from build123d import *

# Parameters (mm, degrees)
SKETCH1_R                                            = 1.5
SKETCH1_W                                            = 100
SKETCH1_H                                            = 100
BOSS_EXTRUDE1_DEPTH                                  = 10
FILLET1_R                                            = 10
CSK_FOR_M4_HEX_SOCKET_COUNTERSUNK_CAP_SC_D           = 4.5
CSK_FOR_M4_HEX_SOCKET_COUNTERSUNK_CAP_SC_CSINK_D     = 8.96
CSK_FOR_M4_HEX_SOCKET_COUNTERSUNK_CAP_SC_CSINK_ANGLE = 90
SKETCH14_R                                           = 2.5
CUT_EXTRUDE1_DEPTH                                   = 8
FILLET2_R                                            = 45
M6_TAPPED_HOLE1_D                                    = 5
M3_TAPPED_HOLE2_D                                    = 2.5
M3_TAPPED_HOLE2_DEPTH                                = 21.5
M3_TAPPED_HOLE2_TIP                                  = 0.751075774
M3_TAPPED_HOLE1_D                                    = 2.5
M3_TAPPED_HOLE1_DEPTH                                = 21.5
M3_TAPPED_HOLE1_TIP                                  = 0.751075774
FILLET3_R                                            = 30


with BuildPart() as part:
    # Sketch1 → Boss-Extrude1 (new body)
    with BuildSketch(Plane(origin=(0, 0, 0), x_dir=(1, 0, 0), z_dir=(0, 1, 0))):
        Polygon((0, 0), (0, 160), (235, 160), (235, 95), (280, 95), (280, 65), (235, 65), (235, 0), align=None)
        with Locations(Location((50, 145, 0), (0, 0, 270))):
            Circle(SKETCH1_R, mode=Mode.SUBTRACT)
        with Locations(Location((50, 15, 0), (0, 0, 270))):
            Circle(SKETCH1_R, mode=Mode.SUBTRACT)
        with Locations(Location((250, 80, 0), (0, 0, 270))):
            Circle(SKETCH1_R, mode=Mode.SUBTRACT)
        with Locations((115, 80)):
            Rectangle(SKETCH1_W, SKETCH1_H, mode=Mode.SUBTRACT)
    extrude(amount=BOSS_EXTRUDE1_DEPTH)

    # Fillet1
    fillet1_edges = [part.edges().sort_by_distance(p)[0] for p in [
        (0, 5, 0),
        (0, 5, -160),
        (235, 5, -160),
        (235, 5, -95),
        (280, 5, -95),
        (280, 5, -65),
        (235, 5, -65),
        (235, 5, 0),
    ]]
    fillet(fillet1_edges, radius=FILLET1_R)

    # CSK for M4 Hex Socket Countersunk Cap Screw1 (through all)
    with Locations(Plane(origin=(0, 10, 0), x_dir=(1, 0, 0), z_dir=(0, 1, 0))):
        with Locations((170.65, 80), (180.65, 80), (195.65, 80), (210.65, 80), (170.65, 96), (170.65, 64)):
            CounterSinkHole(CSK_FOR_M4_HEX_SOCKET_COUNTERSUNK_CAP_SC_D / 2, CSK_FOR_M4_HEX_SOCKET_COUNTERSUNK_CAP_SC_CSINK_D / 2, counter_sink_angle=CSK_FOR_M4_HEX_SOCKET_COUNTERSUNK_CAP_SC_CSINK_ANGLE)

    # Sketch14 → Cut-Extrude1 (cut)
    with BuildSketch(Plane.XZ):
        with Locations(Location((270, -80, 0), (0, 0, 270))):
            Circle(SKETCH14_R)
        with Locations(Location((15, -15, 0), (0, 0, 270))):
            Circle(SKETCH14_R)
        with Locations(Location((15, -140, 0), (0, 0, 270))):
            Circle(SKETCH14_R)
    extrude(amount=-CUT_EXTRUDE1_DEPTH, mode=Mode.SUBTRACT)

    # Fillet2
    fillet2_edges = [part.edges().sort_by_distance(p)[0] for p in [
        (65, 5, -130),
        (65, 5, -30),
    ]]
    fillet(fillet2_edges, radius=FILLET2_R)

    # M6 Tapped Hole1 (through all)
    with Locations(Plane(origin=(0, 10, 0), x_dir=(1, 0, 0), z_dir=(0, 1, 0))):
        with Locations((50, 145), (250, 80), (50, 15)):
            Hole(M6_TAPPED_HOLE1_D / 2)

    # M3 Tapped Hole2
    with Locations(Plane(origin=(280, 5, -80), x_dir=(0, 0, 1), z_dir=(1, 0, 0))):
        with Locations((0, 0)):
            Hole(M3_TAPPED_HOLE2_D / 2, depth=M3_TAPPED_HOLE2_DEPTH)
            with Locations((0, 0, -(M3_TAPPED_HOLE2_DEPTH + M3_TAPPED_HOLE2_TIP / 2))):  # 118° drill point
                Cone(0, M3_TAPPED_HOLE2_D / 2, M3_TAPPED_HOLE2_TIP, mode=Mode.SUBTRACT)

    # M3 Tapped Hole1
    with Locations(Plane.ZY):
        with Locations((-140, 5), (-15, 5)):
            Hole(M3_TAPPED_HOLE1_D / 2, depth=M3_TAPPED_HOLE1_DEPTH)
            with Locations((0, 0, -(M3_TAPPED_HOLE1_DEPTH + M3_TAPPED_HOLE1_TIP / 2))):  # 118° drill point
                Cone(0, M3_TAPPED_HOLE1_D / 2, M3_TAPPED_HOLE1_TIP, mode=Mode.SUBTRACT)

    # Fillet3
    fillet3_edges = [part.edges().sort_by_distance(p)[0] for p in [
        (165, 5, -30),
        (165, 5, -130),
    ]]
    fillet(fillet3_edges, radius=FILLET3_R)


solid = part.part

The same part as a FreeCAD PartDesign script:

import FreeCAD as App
import Part
import Sketcher
from FreeCAD import Vector
Q = App.Units.Quantity


def edges_at(feature, points):
    """Names of the edges that pass closest to the given points."""
    edges = feature.Shape.Edges
    near = lambda p: min(range(len(edges)), key=lambda i: edges[i].distToShape(Part.Vertex(*p))[0])
    return sorted({f"Edge{near(p) + 1}" for p in points})

doc = App.newDocument("Part")
body = doc.addObject("PartDesign::Body", "Body")

# Sketch on XZ plane
sketch1 = body.newObject("Sketcher::SketchObject", "Sketch")
sketch1.AttachmentSupport = (doc.getObject("XZ_Plane"), [""])
sketch1.MapMode = "FlatFace"
sketch1.addGeometry([
    Part.LineSegment(Vector(0, -160, 0), Vector(0, 0, 0)),  # 0
    Part.LineSegment(Vector(0, 0, 0), Vector(235, 0, 0)),  # 1
    Part.LineSegment(Vector(235, 0, 0), Vector(235, -65, 0)),  # 2
    Part.LineSegment(Vector(235, -65, 0), Vector(280, -65, 0)),  # 3
    Part.LineSegment(Vector(280, -65, 0), Vector(280, -95, 0)),  # 4
    Part.LineSegment(Vector(280, -95, 0), Vector(235, -95, 0)),  # 5
    Part.LineSegment(Vector(235, -95, 0), Vector(235, -160, 0)),  # 6
    Part.LineSegment(Vector(235, -160, 0), Vector(0, -160, 0)),  # 7
    Part.Circle(Vector(50, -15, 0), Vector(0, 0, 1), 1.5),  # 8
    Part.Circle(Vector(250, -80, 0), Vector(0, 0, 1), 1.5),  # 9
    Part.LineSegment(Vector(65, -30, 0), Vector(65, -130, 0)),  # 10
    Part.LineSegment(Vector(65, -130, 0), Vector(165, -130, 0)),  # 11
    Part.LineSegment(Vector(165, -130, 0), Vector(165, -30, 0)),  # 12
    Part.LineSegment(Vector(165, -30, 0), Vector(65, -30, 0)),  # 13
    Part.Circle(Vector(50, -145, 0), Vector(0, 0, 1), 1.5),  # 14
], False)
sketch1.addConstraint([
    Sketcher.Constraint("Coincident", 0, 2, 1, 1),
    Sketcher.Constraint("Coincident", 1, 2, 2, 1),
    Sketcher.Constraint("Coincident", 2, 2, 3, 1),
    Sketcher.Constraint("Coincident", 3, 2, 4, 1),
    Sketcher.Constraint("Coincident", 4, 2, 5, 1),
    Sketcher.Constraint("Coincident", 5, 2, 6, 1),
    Sketcher.Constraint("Coincident", 6, 2, 7, 1),
    Sketcher.Constraint("Coincident", 7, 2, 0, 1),
    Sketcher.Constraint("Coincident", 10, 2, 11, 1),
    Sketcher.Constraint("Coincident", 11, 2, 12, 1),
    Sketcher.Constraint("Coincident", 12, 2, 13, 1),
    Sketcher.Constraint("Coincident", 13, 2, 10, 1),
    Sketcher.Constraint("Vertical", 0),
    Sketcher.Constraint("Horizontal", 1),
    Sketcher.Constraint("Vertical", 2),
    Sketcher.Constraint("Horizontal", 3),
    Sketcher.Constraint("Vertical", 4),
    Sketcher.Constraint("Horizontal", 5),
    Sketcher.Constraint("Vertical", 6),
    Sketcher.Constraint("Horizontal", 7),
    Sketcher.Constraint("Vertical", 10),
    Sketcher.Constraint("Horizontal", 11),
    Sketcher.Constraint("Vertical", 12),
    Sketcher.Constraint("Horizontal", 13),
    Sketcher.Constraint("Coincident", 0, 2, -1, 1),
    Sketcher.Constraint("Equal", 8, 9),
    Sketcher.Constraint("Equal", 9, 14),
    Sketcher.Constraint("Vertical", 8, 3, 14, 3),
    Sketcher.Constraint("Vertical", 2, 2, 5, 2),
    Sketcher.Constraint("Equal", 2, 6),
    Sketcher.Constraint("Equal", 13, 10),
    Sketcher.Constraint("Diameter", 8, Q("3 mm")),
    Sketcher.Constraint("DistanceX", 1, 1, 1, 2, Q("235 mm")),
    Sketcher.Constraint("DistanceX", 3, 1, 3, 2, Q("45 mm")),
    Sketcher.Constraint("DistanceX", 11, 1, 11, 2, Q("100 mm")),
    Sketcher.Constraint("DistanceY", 0, 1, 0, 2, Q("160 mm")),
    Sketcher.Constraint("DistanceY", 2, 2, 2, 1, Q("65 mm")),
    Sketcher.Constraint("DistanceX", -1, 1, 8, 3, Q("50 mm")),
    Sketcher.Constraint("DistanceY", 8, 3, -1, 1, Q("15 mm")),
    Sketcher.Constraint("DistanceX", -1, 1, 9, 3, Q("250 mm")),
    Sketcher.Constraint("DistanceY", 9, 3, -1, 1, Q("80 mm")),
    Sketcher.Constraint("DistanceY", 14, 3, -1, 1, Q("145 mm")),
    Sketcher.Constraint("DistanceX", -1, 1, 10, 2, Q("65 mm")),
    Sketcher.Constraint("DistanceY", 10, 2, -1, 1, Q("130 mm")),
])
pad1 = body.newObject("PartDesign::Pad", "Pad")
pad1.Profile = sketch1
pad1.Length = 10
pad1.Reversed = True
doc.recompute()

fillet = body.newObject("PartDesign::Fillet", "Fillet")
fillet.Base = (pad1, edges_at(pad1, [
    (0, 5, 0),
    (0, 5, -160),
    (235, 5, -160),
    (235, 5, -95),
    (280, 5, -95),
    (280, 5, -65),
    (235, 5, -65),
    (235, 5, 0),
]))
fillet.Radius = 10

# Sketch on XZ plane
sketch2 = body.newObject("Sketcher::SketchObject", "Sketch001")
sketch2.AttachmentSupport = (doc.getObject("XZ_Plane"), [""])
sketch2.MapMode = "FlatFace"
sketch2.AttachmentOffset = App.Placement(Vector(0, 0, -10), App.Rotation())
sketch2.addGeometry([
    Part.Circle(Vector(170.7, -80, 0), Vector(0, 0, 1), 2.2),  # 0
    Part.Circle(Vector(180.7, -80, 0), Vector(0, 0, 1), 2.2),  # 1
    Part.Circle(Vector(195.7, -80, 0), Vector(0, 0, 1), 2.2),  # 2
    Part.Circle(Vector(210.7, -80, 0), Vector(0, 0, 1), 2.2),  # 3
    Part.Circle(Vector(170.7, -96, 0), Vector(0, 0, 1), 2.2),  # 4
    Part.Circle(Vector(170.7, -64, 0), Vector(0, 0, 1), 2.2),  # 5
], False)
sketch2.addConstraint([
    Sketcher.Constraint("Equal", 0, 1),
    Sketcher.Constraint("Equal", 1, 2),
    Sketcher.Constraint("Equal", 2, 3),
    Sketcher.Constraint("Equal", 3, 4),
    Sketcher.Constraint("Equal", 4, 5),
    Sketcher.Constraint("Horizontal", 0, 3, 1, 3),
    Sketcher.Constraint("Horizontal", 1, 3, 2, 3),
    Sketcher.Constraint("Horizontal", 2, 3, 3, 3),
    Sketcher.Constraint("Vertical", 0, 3, 4, 3),
    Sketcher.Constraint("Vertical", 4, 3, 5, 3),
    Sketcher.Constraint("Diameter", 0, Q("4.5 mm")),
    Sketcher.Constraint("DistanceY", 0, 3, -1, 1, Q("80 mm")),
    Sketcher.Constraint("DistanceY", 4, 3, -1, 1, Q("96 mm")),
    Sketcher.Constraint("DistanceY", 5, 3, -1, 1, Q("64 mm")),
    Sketcher.Constraint("DistanceX", 0, 3, 1, 3, Q("10 mm")),
    Sketcher.Constraint("DistanceX", 1, 3, 2, 3, Q("15 mm")),
    Sketcher.Constraint("DistanceX", 2, 3, 3, 3, Q("15 mm")),
    Sketcher.Constraint("DistanceX", -1, 1, 0, 3, Q("170.65 mm")),
])
doc.recompute()
hole = body.newObject("PartDesign::Hole", "Hole")
hole.Profile = sketch2
hole.ThreadType = "None"
hole.Diameter = 4.5
hole.DepthType = "ThroughAll"
hole.HoleCutType = "Countersink"
hole.HoleCutDiameter = 8.96
hole.HoleCutCountersinkAngle = 90
hole.Reversed = True

# Sketch on XZ plane
sketch3 = body.newObject("Sketcher::SketchObject", "Sketch002")
sketch3.AttachmentSupport = (doc.getObject("XZ_Plane"), [""])
sketch3.MapMode = "FlatFace"
sketch3.addGeometry([
    Part.Circle(Vector(270, -80, 0), Vector(0, 0, 1), 2.5),
    Part.Circle(Vector(15, -15, 0), Vector(0, 0, 1), 2.5),
    Part.Circle(Vector(15, -140, 0), Vector(0, 0, 1), 2.5),
], False)
sketch3.addConstraint([
    Sketcher.Constraint("Equal", 0, 1),
    Sketcher.Constraint("Equal", 1, 2),
    Sketcher.Constraint("Vertical", 1, 3, 2, 3),
    Sketcher.Constraint("Diameter", 0, Q("5 mm")),
    Sketcher.Constraint("DistanceX", -1, 1, 0, 3, Q("270 mm")),
    Sketcher.Constraint("DistanceY", 0, 3, -1, 1, Q("80 mm")),
    Sketcher.Constraint("DistanceX", -1, 1, 1, 3, Q("15 mm")),
    Sketcher.Constraint("DistanceY", 1, 3, -1, 1, Q("15 mm")),
    Sketcher.Constraint("DistanceY", 2, 3, -1, 1, Q("140 mm")),
])
pocket1 = body.newObject("PartDesign::Pocket", "Pocket")
pocket1.Profile = sketch3
pocket1.Length = 8
doc.recompute()

fillet2 = body.newObject("PartDesign::Fillet", "Fillet001")
fillet2.Base = (pocket1, edges_at(pocket1, [(65, 5, -130), (65, 5, -30)]))
fillet2.Radius = 45

# Sketch on XZ plane
sketch4 = body.newObject("Sketcher::SketchObject", "Sketch003")
sketch4.AttachmentSupport = (doc.getObject("XZ_Plane"), [""])
sketch4.MapMode = "FlatFace"
sketch4.AttachmentOffset = App.Placement(Vector(0, 0, -10), App.Rotation())
sketch4.addGeometry([
    Part.Circle(Vector(50, -145, 0), Vector(0, 0, 1), 2.5),
    Part.Circle(Vector(250, -80, 0), Vector(0, 0, 1), 2.5),
    Part.Circle(Vector(50, -15, 0), Vector(0, 0, 1), 2.5),
], False)
sketch4.addConstraint([
    Sketcher.Constraint("Equal", 0, 1),
    Sketcher.Constraint("Equal", 1, 2),
    Sketcher.Constraint("Vertical", 0, 3, 2, 3),
    Sketcher.Constraint("Diameter", 0, Q("5 mm")),
    Sketcher.Constraint("DistanceX", -1, 1, 0, 3, Q("50 mm")),
    Sketcher.Constraint("DistanceY", 0, 3, -1, 1, Q("145 mm")),
    Sketcher.Constraint("DistanceX", -1, 1, 1, 3, Q("250 mm")),
    Sketcher.Constraint("DistanceY", 1, 3, -1, 1, Q("80 mm")),
    Sketcher.Constraint("DistanceY", 2, 3, -1, 1, Q("15 mm")),
])
doc.recompute()
hole2 = body.newObject("PartDesign::Hole", "Hole001")
hole2.Profile = sketch4
hole2.ThreadType = "None"
hole2.Diameter = 5
hole2.DepthType = "ThroughAll"
hole2.Reversed = True

# Sketch on YZ plane
sketch5 = body.newObject("Sketcher::SketchObject", "Sketch004")
sketch5.AttachmentSupport = (doc.getObject("YZ_Plane"), [""])
sketch5.MapMode = "FlatFace"
sketch5.AttachmentOffset = App.Placement(Vector(0, 0, 280), App.Rotation())
sketch5.addGeometry(Part.Circle(Vector(5, -80, 0), Vector(0, 0, 1), 1.2), False)
sketch5.addConstraint([
    Sketcher.Constraint("Diameter", 0, Q("2.5 mm")),
    Sketcher.Constraint("DistanceX", -1, 1, 0, 3, Q("5 mm")),
    Sketcher.Constraint("DistanceY", 0, 3, -1, 1, Q("80 mm")),
])
doc.recompute()
hole3 = body.newObject("PartDesign::Hole", "Hole002")
hole3.Profile = sketch5
hole3.ThreadType = "None"
hole3.Diameter = 2.5
hole3.DepthType = "Dimension"
hole3.Depth = 21.5
hole3.DrillPoint = "Angled"
hole3.DrillPointAngle = 118

# Sketch on YZ plane
sketch6 = body.newObject("Sketcher::SketchObject", "Sketch005")
sketch6.AttachmentSupport = (doc.getObject("YZ_Plane"), [""])
sketch6.MapMode = "FlatFace"
sketch6.addGeometry([
    Part.Circle(Vector(5, -140, 0), Vector(0, 0, 1), 1.2),
    Part.Circle(Vector(5, -15, 0), Vector(0, 0, 1), 1.2),
], False)
sketch6.addConstraint([
    Sketcher.Constraint("Equal", 0, 1),
    Sketcher.Constraint("Vertical", 0, 3, 1, 3),
    Sketcher.Constraint("Diameter", 0, Q("2.5 mm")),
    Sketcher.Constraint("DistanceX", -1, 1, 0, 3, Q("5 mm")),
    Sketcher.Constraint("DistanceY", 0, 3, -1, 1, Q("140 mm")),
    Sketcher.Constraint("DistanceY", 1, 3, -1, 1, Q("15 mm")),
])
doc.recompute()
hole4 = body.newObject("PartDesign::Hole", "Hole003")
hole4.Profile = sketch6
hole4.ThreadType = "None"
hole4.Diameter = 2.5
hole4.DepthType = "Dimension"
hole4.Depth = 21.5
hole4.DrillPoint = "Angled"
hole4.DrillPointAngle = 118
hole4.Reversed = True
doc.recompute()

fillet3 = body.newObject("PartDesign::Fillet", "Fillet002")
fillet3.Base = (hole4, edges_at(hole4, [(165, 5, -30), (165, 5, -130)]))
fillet3.Radius = 30

doc.recompute()
